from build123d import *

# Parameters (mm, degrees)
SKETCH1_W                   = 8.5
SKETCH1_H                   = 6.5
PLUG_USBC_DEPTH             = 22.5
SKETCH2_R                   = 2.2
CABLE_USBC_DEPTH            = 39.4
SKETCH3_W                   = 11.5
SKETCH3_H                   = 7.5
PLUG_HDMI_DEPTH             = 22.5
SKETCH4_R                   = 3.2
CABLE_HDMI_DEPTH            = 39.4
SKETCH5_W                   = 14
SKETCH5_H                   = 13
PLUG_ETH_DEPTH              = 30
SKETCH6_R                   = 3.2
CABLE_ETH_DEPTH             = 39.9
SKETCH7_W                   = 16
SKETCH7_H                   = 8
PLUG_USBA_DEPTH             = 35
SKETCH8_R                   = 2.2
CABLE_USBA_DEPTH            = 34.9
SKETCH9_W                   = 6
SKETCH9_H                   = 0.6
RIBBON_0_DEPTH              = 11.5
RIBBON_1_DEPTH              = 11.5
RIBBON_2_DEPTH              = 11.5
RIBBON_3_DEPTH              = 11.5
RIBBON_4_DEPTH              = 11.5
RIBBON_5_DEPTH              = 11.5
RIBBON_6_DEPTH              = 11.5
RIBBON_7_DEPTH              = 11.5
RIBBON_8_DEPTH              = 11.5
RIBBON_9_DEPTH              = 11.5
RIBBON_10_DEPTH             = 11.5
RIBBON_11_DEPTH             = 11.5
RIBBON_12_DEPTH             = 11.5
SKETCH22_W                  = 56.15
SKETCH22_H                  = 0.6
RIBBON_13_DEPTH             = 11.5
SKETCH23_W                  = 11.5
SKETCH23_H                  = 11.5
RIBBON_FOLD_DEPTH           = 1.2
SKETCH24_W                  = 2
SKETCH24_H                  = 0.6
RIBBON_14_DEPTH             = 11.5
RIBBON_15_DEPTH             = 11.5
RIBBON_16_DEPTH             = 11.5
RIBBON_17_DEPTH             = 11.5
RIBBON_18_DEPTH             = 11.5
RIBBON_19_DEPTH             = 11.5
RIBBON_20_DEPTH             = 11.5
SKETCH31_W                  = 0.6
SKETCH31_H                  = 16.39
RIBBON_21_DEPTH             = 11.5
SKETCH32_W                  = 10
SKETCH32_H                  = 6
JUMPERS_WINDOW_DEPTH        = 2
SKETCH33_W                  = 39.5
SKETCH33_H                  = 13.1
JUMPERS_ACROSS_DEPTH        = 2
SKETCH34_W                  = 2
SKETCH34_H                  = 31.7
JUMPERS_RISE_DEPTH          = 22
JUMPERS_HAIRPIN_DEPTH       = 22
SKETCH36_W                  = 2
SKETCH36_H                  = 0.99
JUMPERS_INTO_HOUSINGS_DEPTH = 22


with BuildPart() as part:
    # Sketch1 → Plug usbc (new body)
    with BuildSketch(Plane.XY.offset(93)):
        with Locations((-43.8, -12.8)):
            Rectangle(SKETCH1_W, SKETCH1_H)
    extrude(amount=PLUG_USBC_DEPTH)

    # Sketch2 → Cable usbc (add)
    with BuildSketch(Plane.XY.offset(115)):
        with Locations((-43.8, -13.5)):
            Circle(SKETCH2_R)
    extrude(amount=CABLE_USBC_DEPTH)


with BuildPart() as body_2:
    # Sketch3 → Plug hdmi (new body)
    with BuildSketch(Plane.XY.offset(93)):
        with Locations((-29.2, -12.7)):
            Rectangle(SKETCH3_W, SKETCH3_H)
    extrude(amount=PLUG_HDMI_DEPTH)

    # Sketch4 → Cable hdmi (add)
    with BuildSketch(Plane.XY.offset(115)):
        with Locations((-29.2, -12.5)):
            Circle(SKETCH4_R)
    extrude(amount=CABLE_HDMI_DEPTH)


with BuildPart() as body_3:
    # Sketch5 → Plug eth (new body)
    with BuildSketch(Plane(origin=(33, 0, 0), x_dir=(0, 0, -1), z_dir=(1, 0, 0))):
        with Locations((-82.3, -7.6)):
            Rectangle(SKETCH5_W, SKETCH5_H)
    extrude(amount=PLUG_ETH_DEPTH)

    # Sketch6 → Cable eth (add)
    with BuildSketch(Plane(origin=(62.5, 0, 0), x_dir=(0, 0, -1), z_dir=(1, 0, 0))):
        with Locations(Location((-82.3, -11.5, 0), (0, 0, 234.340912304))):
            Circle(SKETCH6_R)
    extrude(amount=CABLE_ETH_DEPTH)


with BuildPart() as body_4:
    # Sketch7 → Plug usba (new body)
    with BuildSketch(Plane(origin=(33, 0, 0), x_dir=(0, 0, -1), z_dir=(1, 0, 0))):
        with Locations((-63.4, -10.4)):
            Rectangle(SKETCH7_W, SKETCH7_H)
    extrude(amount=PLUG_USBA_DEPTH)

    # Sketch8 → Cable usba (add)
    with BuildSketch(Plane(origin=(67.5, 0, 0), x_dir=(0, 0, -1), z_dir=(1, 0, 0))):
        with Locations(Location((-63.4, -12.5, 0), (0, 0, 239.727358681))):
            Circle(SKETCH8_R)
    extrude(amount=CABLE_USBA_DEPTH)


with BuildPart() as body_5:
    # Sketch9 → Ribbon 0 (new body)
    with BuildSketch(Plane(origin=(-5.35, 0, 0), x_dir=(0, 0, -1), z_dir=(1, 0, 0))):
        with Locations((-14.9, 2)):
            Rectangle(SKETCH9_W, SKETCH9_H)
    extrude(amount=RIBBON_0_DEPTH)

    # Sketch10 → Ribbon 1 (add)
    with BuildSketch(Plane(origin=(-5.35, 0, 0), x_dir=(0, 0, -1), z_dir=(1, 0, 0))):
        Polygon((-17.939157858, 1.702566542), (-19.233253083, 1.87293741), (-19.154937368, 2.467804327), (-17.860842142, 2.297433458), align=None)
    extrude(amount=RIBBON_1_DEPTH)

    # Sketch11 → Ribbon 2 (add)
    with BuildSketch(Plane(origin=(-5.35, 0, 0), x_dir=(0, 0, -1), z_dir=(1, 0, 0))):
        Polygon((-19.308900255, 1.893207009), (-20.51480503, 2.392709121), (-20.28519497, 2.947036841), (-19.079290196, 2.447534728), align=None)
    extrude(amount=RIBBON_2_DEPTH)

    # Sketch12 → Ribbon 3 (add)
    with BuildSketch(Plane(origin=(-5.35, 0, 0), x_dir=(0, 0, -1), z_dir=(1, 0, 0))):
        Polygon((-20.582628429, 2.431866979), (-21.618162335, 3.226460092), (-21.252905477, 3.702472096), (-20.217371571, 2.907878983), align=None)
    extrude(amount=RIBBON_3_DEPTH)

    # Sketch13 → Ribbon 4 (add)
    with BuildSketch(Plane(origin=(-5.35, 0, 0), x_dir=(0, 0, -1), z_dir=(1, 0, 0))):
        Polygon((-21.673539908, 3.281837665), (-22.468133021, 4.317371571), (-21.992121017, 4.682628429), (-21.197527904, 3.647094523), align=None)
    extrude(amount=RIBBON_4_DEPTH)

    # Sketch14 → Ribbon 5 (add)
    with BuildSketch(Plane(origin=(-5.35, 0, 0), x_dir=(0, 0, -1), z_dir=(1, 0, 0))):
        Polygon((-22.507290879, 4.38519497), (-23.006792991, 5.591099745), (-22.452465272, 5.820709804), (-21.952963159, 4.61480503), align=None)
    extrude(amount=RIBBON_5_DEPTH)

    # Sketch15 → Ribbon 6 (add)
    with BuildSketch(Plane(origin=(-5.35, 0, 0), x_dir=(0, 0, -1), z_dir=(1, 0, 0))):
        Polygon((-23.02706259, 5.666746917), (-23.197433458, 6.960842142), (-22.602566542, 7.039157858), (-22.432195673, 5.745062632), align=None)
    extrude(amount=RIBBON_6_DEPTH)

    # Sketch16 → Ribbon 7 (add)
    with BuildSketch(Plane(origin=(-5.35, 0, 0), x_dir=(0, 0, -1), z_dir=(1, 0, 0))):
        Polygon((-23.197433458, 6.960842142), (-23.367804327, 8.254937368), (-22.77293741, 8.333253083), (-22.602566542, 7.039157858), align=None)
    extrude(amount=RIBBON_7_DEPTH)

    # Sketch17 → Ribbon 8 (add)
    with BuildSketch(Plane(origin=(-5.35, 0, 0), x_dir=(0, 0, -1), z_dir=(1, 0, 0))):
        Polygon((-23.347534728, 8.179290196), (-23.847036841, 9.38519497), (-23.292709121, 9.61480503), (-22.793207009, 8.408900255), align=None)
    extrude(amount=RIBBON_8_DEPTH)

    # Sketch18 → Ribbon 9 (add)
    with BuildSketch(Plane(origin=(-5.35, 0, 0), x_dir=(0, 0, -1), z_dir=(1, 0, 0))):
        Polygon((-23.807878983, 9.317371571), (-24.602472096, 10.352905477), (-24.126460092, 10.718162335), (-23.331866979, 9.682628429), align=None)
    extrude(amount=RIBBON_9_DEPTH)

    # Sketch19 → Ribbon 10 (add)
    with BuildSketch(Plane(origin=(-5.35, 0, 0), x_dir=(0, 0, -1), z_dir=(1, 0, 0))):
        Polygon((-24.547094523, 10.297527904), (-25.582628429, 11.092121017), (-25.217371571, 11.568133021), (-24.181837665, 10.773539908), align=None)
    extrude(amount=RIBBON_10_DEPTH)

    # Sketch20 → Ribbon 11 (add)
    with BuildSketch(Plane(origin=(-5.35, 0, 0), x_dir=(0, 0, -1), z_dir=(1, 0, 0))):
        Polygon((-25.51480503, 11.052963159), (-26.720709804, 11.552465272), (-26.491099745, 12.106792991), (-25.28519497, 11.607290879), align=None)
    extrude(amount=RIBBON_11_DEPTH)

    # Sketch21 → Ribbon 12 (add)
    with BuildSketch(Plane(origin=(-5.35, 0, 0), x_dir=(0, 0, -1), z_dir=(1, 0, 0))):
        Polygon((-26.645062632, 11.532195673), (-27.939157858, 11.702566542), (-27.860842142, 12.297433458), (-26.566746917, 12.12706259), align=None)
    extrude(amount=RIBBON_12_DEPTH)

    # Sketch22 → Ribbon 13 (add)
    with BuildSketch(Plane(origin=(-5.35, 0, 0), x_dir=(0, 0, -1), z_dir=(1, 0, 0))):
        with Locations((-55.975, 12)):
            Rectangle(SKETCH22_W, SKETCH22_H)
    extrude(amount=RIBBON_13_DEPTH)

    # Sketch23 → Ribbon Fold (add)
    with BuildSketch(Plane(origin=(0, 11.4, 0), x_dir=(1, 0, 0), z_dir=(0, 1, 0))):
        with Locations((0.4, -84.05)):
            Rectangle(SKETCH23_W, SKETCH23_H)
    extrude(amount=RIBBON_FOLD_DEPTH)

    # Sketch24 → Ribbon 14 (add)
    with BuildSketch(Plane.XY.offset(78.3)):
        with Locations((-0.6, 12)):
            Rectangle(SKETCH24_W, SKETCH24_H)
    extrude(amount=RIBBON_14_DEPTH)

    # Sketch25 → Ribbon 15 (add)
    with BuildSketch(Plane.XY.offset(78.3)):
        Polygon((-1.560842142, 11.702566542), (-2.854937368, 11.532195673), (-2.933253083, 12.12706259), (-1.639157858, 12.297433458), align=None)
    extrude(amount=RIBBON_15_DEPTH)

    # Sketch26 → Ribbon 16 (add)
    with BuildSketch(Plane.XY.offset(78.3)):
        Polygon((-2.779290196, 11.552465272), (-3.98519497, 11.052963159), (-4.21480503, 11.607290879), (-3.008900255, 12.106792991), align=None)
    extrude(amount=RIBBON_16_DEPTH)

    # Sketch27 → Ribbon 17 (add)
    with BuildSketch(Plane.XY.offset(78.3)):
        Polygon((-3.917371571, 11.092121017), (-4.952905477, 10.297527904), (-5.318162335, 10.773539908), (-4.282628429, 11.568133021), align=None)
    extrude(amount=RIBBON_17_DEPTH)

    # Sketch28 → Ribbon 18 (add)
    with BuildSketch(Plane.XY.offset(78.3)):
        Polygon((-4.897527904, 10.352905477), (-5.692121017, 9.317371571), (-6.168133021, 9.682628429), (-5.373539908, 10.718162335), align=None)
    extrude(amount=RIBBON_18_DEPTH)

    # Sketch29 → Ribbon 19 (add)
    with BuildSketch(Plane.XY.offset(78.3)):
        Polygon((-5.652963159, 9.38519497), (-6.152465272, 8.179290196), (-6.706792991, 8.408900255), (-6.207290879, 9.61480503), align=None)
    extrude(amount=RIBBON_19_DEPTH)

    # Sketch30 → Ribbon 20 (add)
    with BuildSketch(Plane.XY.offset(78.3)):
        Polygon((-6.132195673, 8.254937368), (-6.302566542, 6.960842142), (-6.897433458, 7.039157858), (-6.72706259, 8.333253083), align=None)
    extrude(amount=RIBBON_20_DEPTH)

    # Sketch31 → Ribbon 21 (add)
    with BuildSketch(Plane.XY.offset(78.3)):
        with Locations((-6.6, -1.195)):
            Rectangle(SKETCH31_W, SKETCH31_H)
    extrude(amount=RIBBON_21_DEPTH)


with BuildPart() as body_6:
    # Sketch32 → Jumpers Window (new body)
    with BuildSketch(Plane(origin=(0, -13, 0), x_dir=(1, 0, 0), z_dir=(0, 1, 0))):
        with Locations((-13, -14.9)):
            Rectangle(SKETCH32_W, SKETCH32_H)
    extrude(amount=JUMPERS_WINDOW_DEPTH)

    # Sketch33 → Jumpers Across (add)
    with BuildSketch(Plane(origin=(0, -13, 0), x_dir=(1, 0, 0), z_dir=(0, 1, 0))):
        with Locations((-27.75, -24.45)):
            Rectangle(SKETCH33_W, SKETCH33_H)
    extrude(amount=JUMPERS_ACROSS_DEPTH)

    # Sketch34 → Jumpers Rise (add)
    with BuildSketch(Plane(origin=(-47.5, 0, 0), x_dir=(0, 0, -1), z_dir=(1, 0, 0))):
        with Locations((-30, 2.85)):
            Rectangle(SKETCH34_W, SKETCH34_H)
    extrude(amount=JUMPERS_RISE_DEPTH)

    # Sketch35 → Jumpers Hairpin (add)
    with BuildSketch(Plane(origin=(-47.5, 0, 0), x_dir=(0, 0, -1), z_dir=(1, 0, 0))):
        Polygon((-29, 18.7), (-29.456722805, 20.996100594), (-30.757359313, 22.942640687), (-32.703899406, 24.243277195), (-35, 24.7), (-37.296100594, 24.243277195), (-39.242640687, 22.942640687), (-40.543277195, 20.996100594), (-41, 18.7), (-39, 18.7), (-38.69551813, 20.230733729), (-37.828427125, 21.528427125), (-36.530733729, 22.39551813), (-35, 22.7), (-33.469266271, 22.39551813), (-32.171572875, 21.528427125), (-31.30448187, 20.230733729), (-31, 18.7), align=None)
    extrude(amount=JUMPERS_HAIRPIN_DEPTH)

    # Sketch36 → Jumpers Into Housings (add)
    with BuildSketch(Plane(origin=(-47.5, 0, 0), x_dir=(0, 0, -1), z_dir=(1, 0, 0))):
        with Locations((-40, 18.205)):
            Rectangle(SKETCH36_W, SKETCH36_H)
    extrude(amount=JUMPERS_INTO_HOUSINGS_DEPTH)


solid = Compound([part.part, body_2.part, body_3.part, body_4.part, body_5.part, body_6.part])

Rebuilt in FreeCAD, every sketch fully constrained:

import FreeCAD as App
import Part
import Sketcher
Q = App.Units.Quantity


def add_polygon(sketch, points):
    """Adds a closed chain of lines whose ends are joined by coincident constraints."""
    first, n = sketch.GeometryCount, len(points)
    for a, b in zip(points, points[1:] + points[:1]):
        sketch.addGeometry(Part.LineSegment(App.Vector(*a, 0), App.Vector(*b, 0)), False)
    for i in range(n):
        sketch.addConstraint(Sketcher.Constraint("Coincident", first + i, 2, first + (i + 1) % n, 1))

doc = App.newDocument("Part")
body = doc.addObject("PartDesign::Body", "Body")

# Sketch on XY plane
sketch1 = body.newObject("Sketcher::SketchObject", "Sketch")
sketch1.AttachmentSupport = (doc.getObject("XY_Plane"), [""])
sketch1.MapMode = "FlatFace"
sketch1.AttachmentOffset = App.Placement(App.Vector(0, 0, 93), App.Rotation())
add_polygon(sketch1, [(-48.05, -9.55), (-48.05, -16.05), (-39.55, -16.05), (-39.55, -9.55)])  # lines 0-3
sketch1.addConstraint(Sketcher.Constraint("Vertical", 0))
sketch1.addConstraint(Sketcher.Constraint("Horizontal", 1))
sketch1.addConstraint(Sketcher.Constraint("Vertical", 2))
sketch1.addConstraint(Sketcher.Constraint("Horizontal", 3))
sketch1.addConstraint(Sketcher.Constraint("DistanceX", 1, 1, 1, 2, Q("8.5 mm")))
sketch1.addConstraint(Sketcher.Constraint("DistanceY", 0, 2, 0, 1, Q("6.5 mm")))
sketch1.addConstraint(Sketcher.Constraint("DistanceX", 0, 2, -1, 1, Q("48.05 mm")))
sketch1.addConstraint(Sketcher.Constraint("DistanceY", 0, 2, -1, 1, Q("16.05 mm")))
pad1 = body.newObject("PartDesign::Pad", "Pad")
pad1.Profile = sketch1
pad1.Length = 22.5

# Sketch on XY plane
sketch2 = body.newObject("Sketcher::SketchObject", "Sketch001")
sketch2.AttachmentSupport = (doc.getObject("XY_Plane"), [""])
sketch2.MapMode = "FlatFace"
sketch2.AttachmentOffset = App.Placement(App.Vector(0, 0, 115), App.Rotation())
sketch2.addGeometry(Part.Circle(App.Vector(-43.8, -13.5, 0), App.Vector(0, 0, 1), 2.2), False)
sketch2.addConstraint(Sketcher.Constraint("Diameter", 0, Q("4.4 mm")))
sketch2.addConstraint(Sketcher.Constraint("DistanceX", 0, 3, -1, 1, Q("43.8 mm")))
sketch2.addConstraint(Sketcher.Constraint("DistanceY", 0, 3, -1, 1, Q("13.5 mm")))
pad2 = body.newObject("PartDesign::Pad", "Pad001")
pad2.Profile = sketch2
pad2.Length = 39.4
body2 = doc.addObject("PartDesign::Body", "Body001")

# Sketch on XY plane
sketch3 = body2.newObject("Sketcher::SketchObject", "Sketch002")
sketch3.AttachmentSupport = (doc.getObject("XY_Plane001"), [""])
sketch3.MapMode = "FlatFace"
sketch3.AttachmentOffset = App.Placement(App.Vector(0, 0, 93), App.Rotation())
add_polygon(sketch3, [(-34.95, -8.95), (-34.95, -16.45), (-23.45, -16.45), (-23.45, -8.95)])  # lines 0-3
sketch3.addConstraint(Sketcher.Constraint("Vertical", 0))
sketch3.addConstraint(Sketcher.Constraint("Horizontal", 1))
sketch3.addConstraint(Sketcher.Constraint("Vertical", 2))
sketch3.addConstraint(Sketcher.Constraint("Horizontal", 3))
sketch3.addConstraint(Sketcher.Constraint("DistanceX", 1, 1, 1, 2, Q("11.5 mm")))
sketch3.addConstraint(Sketcher.Constraint("DistanceY", 0, 2, 0, 1, Q("7.5 mm")))
sketch3.addConstraint(Sketcher.Constraint("DistanceX", 0, 2, -1, 1, Q("34.95 mm")))
sketch3.addConstraint(Sketcher.Constraint("DistanceY", 0, 2, -1, 1, Q("16.45 mm")))
pad3 = body2.newObject("PartDesign::Pad", "Pad002")
pad3.Profile = sketch3
pad3.Length = 22.5

# Sketch on XY plane
sketch4 = body2.newObject("Sketcher::SketchObject", "Sketch003")
sketch4.AttachmentSupport = (doc.getObject("XY_Plane001"), [""])
sketch4.MapMode = "FlatFace"
sketch4.AttachmentOffset = App.Placement(App.Vector(0, 0, 115), App.Rotation())
sketch4.addGeometry(Part.Circle(App.Vector(-29.2, -12.5, 0), App.Vector(0, 0, 1), 3.2), False)
sketch4.addConstraint(Sketcher.Constraint("Diameter", 0, Q("6.4 mm")))
sketch4.addConstraint(Sketcher.Constraint("DistanceX", 0, 3, -1, 1, Q("29.2 mm")))
sketch4.addConstraint(Sketcher.Constraint("DistanceY", 0, 3, -1, 1, Q("12.5 mm")))
pad4 = body2.newObject("PartDesign::Pad", "Pad003")
pad4.Profile = sketch4
pad4.Length = 39.4
body3 = doc.addObject("PartDesign::Body", "Body002")

# Sketch on YZ plane
sketch5 = body3.newObject("Sketcher::SketchObject", "Sketch004")
sketch5.AttachmentSupport = (doc.getObject("YZ_Plane002"), [""])
sketch5.MapMode = "FlatFace"
sketch5.AttachmentOffset = App.Placement(App.Vector(0, 0, 33), App.Rotation())
add_polygon(sketch5, [(-1.1, 89.3), (-14.1, 89.3), (-14.1, 75.3), (-1.1, 75.3)])  # lines 0-3
sketch5.addConstraint(Sketcher.Constraint("Horizontal", 0))
sketch5.addConstraint(Sketcher.Constraint("Vertical", 1))
sketch5.addConstraint(Sketcher.Constraint("Horizontal", 2))
sketch5.addConstraint(Sketcher.Constraint("Vertical", 3))
sketch5.addConstraint(Sketcher.Constraint("DistanceX", 0, 2, 0, 1, Q("13 mm")))
sketch5.addConstraint(Sketcher.Constraint("DistanceY", 1, 2, 1, 1, Q("14 mm")))
sketch5.addConstraint(Sketcher.Constraint("DistanceX", 0, 2, -1, 1, Q("14.1 mm")))
sketch5.addConstraint(Sketcher.Constraint("DistanceY", -1, 1, 0, 2, Q("89.3 mm")))
pad5 = body3.newObject("PartDesign::Pad", "Pad004")
pad5.Profile = sketch5
pad5.Length = 30

# Sketch on YZ plane
sketch6 = body3.newObject("Sketcher::SketchObject", "Sketch005")
sketch6.AttachmentSupport = (doc.getObject("YZ_Plane002"), [""])
sketch6.MapMode = "FlatFace"
sketch6.AttachmentOffset = App.Placement(App.Vector(0, 0, 62.5), App.Rotation())
sketch6.addGeometry(Part.Circle(App.Vector(-11.5, 82.3, 0), App.Vector(0, 0, 1), 3.2), False)
sketch6.addConstraint(Sketcher.Constraint("Diameter", 0, Q("6.4 mm")))
sketch6.addConstraint(Sketcher.Constraint("DistanceX", 0, 3, -1, 1, Q("11.5 mm")))
sketch6.addConstraint(Sketcher.Constraint("DistanceY", -1, 1, 0, 3, Q("82.3 mm")))
pad6 = body3.newObject("PartDesign::Pad", "Pad005")
pad6.Profile = sketch6
pad6.Length = 39.9
body4 = doc.addObject("PartDesign::Body", "Body003")

# Sketch on YZ plane
sketch7 = body4.newObject("Sketcher::SketchObject", "Sketch006")
sketch7.AttachmentSupport = (doc.getObject("YZ_Plane003"), [""])
sketch7.MapMode = "FlatFace"
sketch7.AttachmentOffset = App.Placement(App.Vector(0, 0, 33), App.Rotation())
add_polygon(sketch7, [(-6.4, 71.4), (-14.4, 71.4), (-14.4, 55.4), (-6.4, 55.4)])  # lines 0-3
sketch7.addConstraint(Sketcher.Constraint("Horizontal", 0))
sketch7.addConstraint(Sketcher.Constraint("Vertical", 1))
sketch7.addConstraint(Sketcher.Constraint("Horizontal", 2))
sketch7.addConstraint(Sketcher.Constraint("Vertical", 3))
sketch7.addConstraint(Sketcher.Constraint("DistanceX", 0, 2, 0, 1, Q("8 mm")))
sketch7.addConstraint(Sketcher.Constraint("DistanceY", 1, 2, 1, 1, Q("16 mm")))
sketch7.addConstraint(Sketcher.Constraint("DistanceX", 0, 2, -1, 1, Q("14.4 mm")))
sketch7.addConstraint(Sketcher.Constraint("DistanceY", -1, 1, 0, 2, Q("71.4 mm")))
pad7 = body4.newObject("PartDesign::Pad", "Pad006")
pad7.Profile = sketch7
pad7.Length = 35

# Sketch on YZ plane
sketch8 = body4.newObject("Sketcher::SketchObject", "Sketch007")
sketch8.AttachmentSupport = (doc.getObject("YZ_Plane003"), [""])
sketch8.MapMode = "FlatFace"
sketch8.AttachmentOffset = App.Placement(App.Vector(0, 0, 67.5), App.Rotation())
sketch8.addGeometry(Part.Circle(App.Vector(-12.5, 63.4, 0), App.Vector(0, 0, 1), 2.2), False)
sketch8.addConstraint(Sketcher.Constraint("Diameter", 0, Q("4.4 mm")))
sketch8.addConstraint(Sketcher.Constraint("DistanceX", 0, 3, -1, 1, Q("12.5 mm")))
sketch8.addConstraint(Sketcher.Constraint("DistanceY", -1, 1, 0, 3, Q("63.4 mm")))
pad8 = body4.newObject("PartDesign::Pad", "Pad007")
pad8.Profile = sketch8
pad8.Length = 34.9
body5 = doc.addObject("PartDesign::Body", "Body004")

# Sketch on YZ plane
sketch9 = body5.newObject("Sketcher::SketchObject", "Sketch008")
sketch9.AttachmentSupport = (doc.getObject("YZ_Plane004"), [""])
sketch9.MapMode = "FlatFace"
sketch9.AttachmentOffset = App.Placement(App.Vector(0, 0, -5.35), App.Rotation())
add_polygon(sketch9, [(2.3, 17.9), (1.7, 17.9), (1.7, 11.9), (2.3, 11.9)])  # lines 0-3
sketch9.addConstraint(Sketcher.Constraint("Horizontal", 0))
sketch9.addConstraint(Sketcher.Constraint("Vertical", 1))
sketch9.addConstraint(Sketcher.Constraint("Horizontal", 2))
sketch9.addConstraint(Sketcher.Constraint("Vertical", 3))
sketch9.addConstraint(Sketcher.Constraint("DistanceY", 1, 2, 1, 1, Q("6 mm")))
sketch9.addConstraint(Sketcher.Constraint("DistanceX", 0, 2, 0, 1, Q("0.6 mm")))
sketch9.addConstraint(Sketcher.Constraint("DistanceX", -1, 1, 0, 2, Q("1.7 mm")))
sketch9.addConstraint(Sketcher.Constraint("DistanceY", -1, 1, 0, 2, Q("17.9 mm")))
pad9 = body5.newObject("PartDesign::Pad", "Pad008")
pad9.Profile = sketch9
pad9.Length = 11.5

# Sketch on YZ plane
sketch10 = body5.newObject("Sketcher::SketchObject", "Sketch009")
sketch10.AttachmentSupport = (doc.getObject("YZ_Plane004"), [""])
sketch10.MapMode = "FlatFace"
sketch10.AttachmentOffset = App.Placement(App.Vector(0, 0, -5.35), App.Rotation())
add_polygon(sketch10, [(1.872937, 19.233253), (1.702567, 17.939158), (2.297433, 17.860842), (2.467804, 19.154937)])  # lines 0-3
sketch10.addConstraint(Sketcher.Constraint("Perpendicular", 0, 1))
sketch10.addConstraint(Sketcher.Constraint("Perpendicular", 1, 2))
sketch10.addConstraint(Sketcher.Constraint("Perpendicular", 2, 3))
sketch10.addConstraint(Sketcher.Constraint("Angle", 0, Q("-97.5 deg")))
sketch10.addConstraint(Sketcher.Constraint("Distance", 1, Q("0.6 mm")))
sketch10.addConstraint(Sketcher.Constraint("Distance", 0, Q("1.305262 mm")))
sketch10.addConstraint(Sketcher.Constraint("DistanceX", -1, 1, 0, 2, Q("1.702567 mm")))
sketch10.addConstraint(Sketcher.Constraint("DistanceY", -1, 1, 0, 2, Q("17.939158 mm")))
pad10 = body5.newObject("PartDesign::Pad", "Pad009")
pad10.Profile = sketch10
pad10.Length = 11.5

# Sketch on YZ plane
sketch11 = body5.newObject("Sketcher::SketchObject", "Sketch010")
sketch11.AttachmentSupport = (doc.getObject("YZ_Plane004"), [""])
sketch11.MapMode = "FlatFace"
sketch11.AttachmentOffset = App.Placement(App.Vector(0, 0, -5.35), App.Rotation())
add_polygon(sketch11, [(2.392709, 20.514805), (1.893207, 19.3089), (2.447535, 19.07929), (2.947037, 20.285195)])  # lines 0-3
sketch11.addConstraint(Sketcher.Constraint("Perpendicular", 0, 1))
sketch11.addConstraint(Sketcher.Constraint("Perpendicular", 1, 2))
sketch11.addConstraint(Sketcher.Constraint("Perpendicular", 2, 3))
sketch11.addConstraint(Sketcher.Constraint("Angle", 0, Q("-112.5 deg")))
sketch11.addConstraint(Sketcher.Constraint("Distance", 1, Q("0.6 mm")))
sketch11.addConstraint(Sketcher.Constraint("DistanceY", -1, 1, 0, 2, Q("19.3089 mm")))
sketch11.addConstraint(Sketcher.Constraint("Distance", 0, Q("1.305262 mm")))
sketch11.addConstraint(Sketcher.Constraint("DistanceX", -1, 1, 3, 2, Q("2.392709 mm")))
pad11 = body5.newObject("PartDesign::Pad", "Pad010")
pad11.Profile = sketch11
pad11.Length = 11.5

# Sketch on YZ plane
sketch12 = body5.newObject("Sketcher::SketchObject", "Sketch011")
sketch12.AttachmentSupport = (doc.getObject("YZ_Plane004"), [""])
sketch12.MapMode = "FlatFace"
sketch12.AttachmentOffset = App.Placement(App.Vector(0, 0, -5.35), App.Rotation())
add_polygon(sketch12, [(3.22646, 21.618162), (2.431867, 20.582628), (2.907879, 20.217372), (3.702472, 21.252905)])  # lines 0-3
sketch12.addConstraint(Sketcher.Constraint("Perpendicular", 0, 1))
sketch12.addConstraint(Sketcher.Constraint("Perpendicular", 1, 2))
sketch12.addConstraint(Sketcher.Constraint("Perpendicular", 2, 3))
sketch12.addConstraint(Sketcher.Constraint("Angle", 0, Q("-127.5 deg")))
sketch12.addConstraint(Sketcher.Constraint("Distance", 1, Q("0.6 mm")))
sketch12.addConstraint(Sketcher.Constraint("Distance", 0, Q("1.305262 mm")))
sketch12.addConstraint(Sketcher.Constraint("DistanceY", -1, 1, 0, 2, Q("20.582628 mm")))
sketch12.addConstraint(Sketcher.Constraint("DistanceX", -1, 1, 1, 2, Q("2.907879 mm")))
pad12 = body5.newObject("PartDesign::Pad", "Pad011")
pad12.Profile = sketch12
pad12.Length = 11.5

# Sketch on YZ plane
sketch13 = body5.newObject("Sketcher::SketchObject", "Sketch012")
sketch13.AttachmentSupport = (doc.getObject("YZ_Plane004"), [""])
sketch13.MapMode = "FlatFace"
sketch13.AttachmentOffset = App.Placement(App.Vector(0, 0, -5.35), App.Rotation())
add_polygon(sketch13, [(4.317372, 22.468133), (3.281838, 21.67354), (3.647095, 21.197528), (4.682628, 21.992121)])  # lines 0-3
sketch13.addConstraint(Sketcher.Constraint("Perpendicular", 0, 1))
sketch13.addConstraint(Sketcher.Constraint("Perpendicular", 1, 2))
sketch13.addConstraint(Sketcher.Constraint("Perpendicular", 2, 3))
sketch13.addConstraint(Sketcher.Constraint("Angle", 0, Q("-142.5 deg")))
sketch13.addConstraint(Sketcher.Constraint("Distance", 1, Q("0.6 mm")))
sketch13.addConstraint(Sketcher.Constraint("Distance", 0, Q("1.305262 mm")))
sketch13.addConstraint(Sketcher.Constraint("DistanceY", -1, 1, 0, 2, Q("21.67354 mm")))
sketch13.addConstraint(Sketcher.Constraint("DistanceX", -1, 1, 2, 2, Q("4.682628 mm")))
pad13 = body5.newObject("PartDesign::Pad", "Pad012")
pad13.Profile = sketch13
pad13.Length = 11.5

# Sketch on YZ plane
sketch14 = body5.newObject("Sketcher::SketchObject", "Sketch013")
sketch14.AttachmentSupport = (doc.getObject("YZ_Plane004"), [""])
sketch14.MapMode = "FlatFace"
sketch14.AttachmentOffset = App.Placement(App.Vector(0, 0, -5.35), App.Rotation())
add_polygon(sketch14, [(5.5911, 23.006793), (4.385195, 22.507291), (4.614805, 21.952963), (5.82071, 22.452465)])  # lines 0-3
sketch14.addConstraint(Sketcher.Constraint("Perpendicular", 0, 1))
sketch14.addConstraint(Sketcher.Constraint("Perpendicular", 1, 2))
sketch14.addConstraint(Sketcher.Constraint("Perpendicular", 2, 3))
sketch14.addConstraint(Sketcher.Constraint("Angle", 0, Q("-157.5 deg")))
sketch14.addConstraint(Sketcher.Constraint("Distance", 1, Q("0.6 mm")))
sketch14.addConstraint(Sketcher.Constraint("DistanceX", -1, 1, 3, 2, Q("5.5911 mm")))
sketch14.addConstraint(Sketcher.Constraint("Distance", 0, Q("1.305262 mm")))
sketch14.addConstraint(Sketcher.Constraint("DistanceY", -1, 1, 0, 2, Q("22.507291 mm")))
pad14 = body5.newObject("PartDesign::Pad", "Pad013")
pad14.Profile = sketch14
pad14.Length = 11.5

# Sketch on YZ plane
sketch15 = body5.newObject("Sketcher::SketchObject", "Sketch014")
sketch15.AttachmentSupport = (doc.getObject("YZ_Plane004"), [""])
sketch15.MapMode = "FlatFace"
sketch15.AttachmentOffset = App.Placement(App.Vector(0, 0, -5.35), App.Rotation())
add_polygon(sketch15, [(6.960842, 23.197433), (5.666747, 23.027063), (5.745063, 22.432196), (7.039158, 22.602567)])  # lines 0-3
sketch15.addConstraint(Sketcher.Constraint("Perpendicular", 0, 1))
sketch15.addConstraint(Sketcher.Constraint("Perpendicular", 1, 2))
sketch15.addConstraint(Sketcher.Constraint("Perpendicular", 2, 3))
sketch15.addConstraint(Sketcher.Constraint("Angle", 0, Q("-172.5 deg")))
sketch15.addConstraint(Sketcher.Constraint("Distance", 1, Q("0.6 mm")))
sketch15.addConstraint(Sketcher.Constraint("Distance", 0, Q("1.305262 mm")))
sketch15.addConstraint(Sketcher.Constraint("DistanceX", -1, 1, 0, 2, Q("5.666747 mm")))
sketch15.addConstraint(Sketcher.Constraint("DistanceY", -1, 1, 0, 2, Q("23.027063 mm")))
pad15 = body5.newObject("PartDesign::Pad", "Pad014")
pad15.Profile = sketch15
pad15.Length = 11.5

# Sketch on YZ plane
sketch16 = body5.newObject("Sketcher::SketchObject", "Sketch015")
sketch16.AttachmentSupport = (doc.getObject("YZ_Plane004"), [""])
sketch16.MapMode = "FlatFace"
sketch16.AttachmentOffset = App.Placement(App.Vector(0, 0, -5.35), App.Rotation())
add_polygon(sketch16, [(8.254937, 23.367804), (6.960842, 23.197433), (7.039158, 22.602567), (8.333253, 22.772937)])  # lines 0-3
sketch16.addConstraint(Sketcher.Constraint("Perpendicular", 0, 1))
sketch16.addConstraint(Sketcher.Constraint("Perpendicular", 1, 2))
sketch16.addConstraint(Sketcher.Constraint("Perpendicular", 2, 3))
sketch16.addConstraint(Sketcher.Constraint("Angle", 0, Q("-172.5 deg")))
sketch16.addConstraint(Sketcher.Constraint("Distance", 1, Q("0.6 mm")))
sketch16.addConstraint(Sketcher.Constraint("Distance", 0, Q("1.305262 mm")))
sketch16.addConstraint(Sketcher.Constraint("DistanceX", -1, 1, 0, 2, Q("6.960842 mm")))
sketch16.addConstraint(Sketcher.Constraint("DistanceY", -1, 1, 0, 2, Q("23.197433 mm")))
pad16 = body5.newObject("PartDesign::Pad", "Pad015")
pad16.Profile = sketch16
pad16.Length = 11.5

# Sketch on YZ plane
sketch17 = body5.newObject("Sketcher::SketchObject", "Sketch016")
sketch17.AttachmentSupport = (doc.getObject("YZ_Plane004"), [""])
sketch17.MapMode = "FlatFace"
sketch17.AttachmentOffset = App.Placement(App.Vector(0, 0, -5.35), App.Rotation())
add_polygon(sketch17, [(9.385195, 23.847037), (8.17929, 23.347535), (8.4089, 22.793207), (9.614805, 23.292709)])  # lines 0-3
sketch17.addConstraint(Sketcher.Constraint("Perpendicular", 0, 1))
sketch17.addConstraint(Sketcher.Constraint("Perpendicular", 1, 2))
sketch17.addConstraint(Sketcher.Constraint("Perpendicular", 2, 3))
sketch17.addConstraint(Sketcher.Constraint("Angle", 0, Q("-157.5 deg")))
sketch17.addConstraint(Sketcher.Constraint("Distance", 1, Q("0.6 mm")))
sketch17.addConstraint(Sketcher.Constraint("DistanceX", -1, 1, 1, 2, Q("8.4089 mm")))
sketch17.addConstraint(Sketcher.Constraint("Distance", 0, Q("1.305262 mm")))
sketch17.addConstraint(Sketcher.Constraint("DistanceY", -1, 1, 2, 2, Q("23.292709 mm")))
pad17 = body5.newObject("PartDesign::Pad", "Pad016")
pad17.Profile = sketch17
pad17.Length = 11.5

# Sketch on YZ plane
sketch18 = body5.newObject("Sketcher::SketchObject", "Sketch017")
sketch18.AttachmentSupport = (doc.getObject("YZ_Plane004"), [""])
sketch18.MapMode = "FlatFace"
sketch18.AttachmentOffset = App.Placement(App.Vector(0, 0, -5.35), App.Rotation())
add_polygon(sketch18, [(10.352905, 24.602472), (9.317372, 23.807879), (9.682628, 23.331867), (10.718162, 24.12646)])  # lines 0-3
sketch18.addConstraint(Sketcher.Constraint("Perpendicular", 0, 1))
sketch18.addConstraint(Sketcher.Constraint("Perpendicular", 1, 2))
sketch18.addConstraint(Sketcher.Constraint("Perpendicular", 2, 3))
sketch18.addConstraint(Sketcher.Constraint("Angle", 0, Q("-142.5 deg")))
sketch18.addConstraint(Sketcher.Constraint("Distance", 1, Q("0.6 mm")))
sketch18.addConstraint(Sketcher.Constraint("Distance", 0, Q("1.305262 mm")))
sketch18.addConstraint(Sketcher.Constraint("DistanceX", -1, 1, 0, 2, Q("9.317372 mm")))
sketch18.addConstraint(Sketcher.Constraint("DistanceY", -1, 1, 0, 2, Q("23.807879 mm")))
pad18 = body5.newObject("PartDesign::Pad", "Pad017")
pad18.Profile = sketch18
pad18.Length = 11.5

# Sketch on YZ plane
sketch19 = body5.newObject("Sketcher::SketchObject", "Sketch018")
sketch19.AttachmentSupport = (doc.getObject("YZ_Plane004"), [""])
sketch19.MapMode = "FlatFace"
sketch19.AttachmentOffset = App.Placement(App.Vector(0, 0, -5.35), App.Rotation())
add_polygon(sketch19, [(11.092121, 25.582628), (10.297528, 24.547095), (10.77354, 24.181838), (11.568133, 25.217372)])  # lines 0-3
sketch19.addConstraint(Sketcher.Constraint("Perpendicular", 0, 1))
sketch19.addConstraint(Sketcher.Constraint("Perpendicular", 1, 2))
sketch19.addConstraint(Sketcher.Constraint("Perpendicular", 2, 3))
sketch19.addConstraint(Sketcher.Constraint("Angle", 0, Q("-127.5 deg")))
sketch19.addConstraint(Sketcher.Constraint("Distance", 1, Q("0.6 mm")))
sketch19.addConstraint(Sketcher.Constraint("Distance", 0, Q("1.305262 mm")))
sketch19.addConstraint(Sketcher.Constraint("DistanceX", -1, 1, 1, 2, Q("10.77354 mm")))
sketch19.addConstraint(Sketcher.Constraint("DistanceY", -1, 1, 2, 2, Q("25.217372 mm")))
pad19 = body5.newObject("PartDesign::Pad", "Pad018")
pad19.Profile = sketch19
pad19.Length = 11.5

# Sketch on YZ plane
sketch20 = body5.newObject("Sketcher::SketchObject", "Sketch019")
sketch20.AttachmentSupport = (doc.getObject("YZ_Plane004"), [""])
sketch20.MapMode = "FlatFace"
sketch20.AttachmentOffset = App.Placement(App.Vector(0, 0, -5.35), App.Rotation())
add_polygon(sketch20, [(11.552465, 26.72071), (11.052963, 25.514805), (11.607291, 25.285195), (12.106793, 26.4911)])  # lines 0-3
sketch20.addConstraint(Sketcher.Constraint("Perpendicular", 0, 1))
sketch20.addConstraint(Sketcher.Constraint("Perpendicular", 1, 2))
sketch20.addConstraint(Sketcher.Constraint("Perpendicular", 2, 3))
sketch20.addConstraint(Sketcher.Constraint("Angle", 0, Q("-112.5 deg")))
sketch20.addConstraint(Sketcher.Constraint("Distance", 1, Q("0.6 mm")))
sketch20.addConstraint(Sketcher.Constraint("DistanceY", -1, 1, 2, 2, Q("26.4911 mm")))
sketch20.addConstraint(Sketcher.Constraint("Distance", 0, Q("1.305262 mm")))
sketch20.addConstraint(Sketcher.Constraint("DistanceX", -1, 1, 1, 2, Q("11.607291 mm")))
pad20 = body5.newObject("PartDesign::Pad", "Pad019")
pad20.Profile = sketch20
pad20.Length = 11.5

# Sketch on YZ plane
sketch21 = body5.newObject("Sketcher::SketchObject", "Sketch020")
sketch21.AttachmentSupport = (doc.getObject("YZ_Plane004"), [""])
sketch21.MapMode = "FlatFace"
sketch21.AttachmentOffset = App.Placement(App.Vector(0, 0, -5.35), App.Rotation())
add_polygon(sketch21, [(11.702567, 27.939158), (11.532196, 26.645063), (12.127063, 26.566747), (12.297433, 27.860842)])  # lines 0-3
sketch21.addConstraint(Sketcher.Constraint("Perpendicular", 0, 1))
sketch21.addConstraint(Sketcher.Constraint("Perpendicular", 1, 2))
sketch21.addConstraint(Sketcher.Constraint("Perpendicular", 2, 3))
sketch21.addConstraint(Sketcher.Constraint("Angle", 0, Q("-97.5 deg")))
sketch21.addConstraint(Sketcher.Constraint("Distance", 1, Q("0.6 mm")))
sketch21.addConstraint(Sketcher.Constraint("Distance", 0, Q("1.305262 mm")))
sketch21.addConstraint(Sketcher.Constraint("DistanceX", -1, 1, 0, 2, Q("11.532196 mm")))
sketch21.addConstraint(Sketcher.Constraint("DistanceY", -1, 1, 0, 2, Q("26.645063 mm")))
pad21 = body5.newObject("PartDesign::Pad", "Pad020")
pad21.Profile = sketch21
pad21.Length = 11.5

# Sketch on YZ plane
sketch22 = body5.newObject("Sketcher::SketchObject", "Sketch021")
sketch22.AttachmentSupport = (doc.getObject("YZ_Plane004"), [""])
sketch22.MapMode = "FlatFace"
sketch22.AttachmentOffset = App.Placement(App.Vector(0, 0, -5.35), App.Rotation())
add_polygon(sketch22, [(12.3, 84.05), (11.7, 84.05), (11.7, 27.9), (12.3, 27.9)])  # lines 0-3
sketch22.addConstraint(Sketcher.Constraint("Horizontal", 0))
sketch22.addConstraint(Sketcher.Constraint("Vertical", 1))
sketch22.addConstraint(Sketcher.Constraint("Horizontal", 2))
sketch22.addConstraint(Sketcher.Constraint("Vertical", 3))
sketch22.addConstraint(Sketcher.Constraint("DistanceX", 0, 2, 0, 1, Q("0.6 mm")))
sketch22.addConstraint(Sketcher.Constraint("DistanceY", 1, 2, 1, 1, Q("56.15 mm")))
sketch22.addConstraint(Sketcher.Constraint("DistanceX", -1, 1, 0, 2, Q("11.7 mm")))
sketch22.addConstraint(Sketcher.Constraint("DistanceY", -1, 1, 1, 2, Q("27.9 mm")))
pad22 = body5.newObject("PartDesign::Pad", "Pad021")
pad22.Profile = sketch22
pad22.Length = 11.5

# Sketch on XZ plane
sketch23 = body5.newObject("Sketcher::SketchObject", "Sketch022")
sketch23.AttachmentSupport = (doc.getObject("XZ_Plane004"), [""])
sketch23.MapMode = "FlatFace"
sketch23.AttachmentOffset = App.Placement(App.Vector(0, 0, -11.4), App.Rotation())
add_polygon(sketch23, [(-5.35, 78.3), (-5.35, 89.8), (6.15, 89.8), (6.15, 78.3)])  # lines 0-3
sketch23.addConstraint(Sketcher.Constraint("Vertical", 0))
sketch23.addConstraint(Sketcher.Constraint("Horizontal", 1))
sketch23.addConstraint(Sketcher.Constraint("Vertical", 2))
sketch23.addConstraint(Sketcher.Constraint("Horizontal", 3))
sketch23.addConstraint(Sketcher.Constraint("Equal", 3, 0))
sketch23.addConstraint(Sketcher.Constraint("DistanceX", 1, 1, 1, 2, Q("11.5 mm")))
sketch23.addConstraint(Sketcher.Constraint("DistanceY", -1, 1, 0, 2, Q("89.8 mm")))
sketch23.addConstraint(Sketcher.Constraint("DistanceX", 0, 2, -1, 1, Q("5.35 mm")))
pad23 = body5.newObject("PartDesign::Pad", "Pad022")
pad23.Profile = sketch23
pad23.Length = 1.2
pad23.Reversed = True

# Sketch on XY plane
sketch24 = body5.newObject("Sketcher::SketchObject", "Sketch023")
sketch24.AttachmentSupport = (doc.getObject("XY_Plane004"), [""])
sketch24.MapMode = "FlatFace"
sketch24.AttachmentOffset = App.Placement(App.Vector(0, 0, 78.3), App.Rotation())
add_polygon(sketch24, [(-1.6, 12.3), (-1.6, 11.7), (0.4, 11.7), (0.4, 12.3)])  # lines 0-3
sketch24.addConstraint(Sketcher.Constraint("Vertical", 0))
sketch24.addConstraint(Sketcher.Constraint("Horizontal", 1))
sketch24.addConstraint(Sketcher.Constraint("Vertical", 2))
sketch24.addConstraint(Sketcher.Constraint("Horizontal", 3))
sketch24.addConstraint(Sketcher.Constraint("DistanceX", 1, 1, 1, 2, Q("2 mm")))
sketch24.addConstraint(Sketcher.Constraint("DistanceY", 0, 2, 0, 1, Q("0.6 mm")))
sketch24.addConstraint(Sketcher.Constraint("DistanceX", 0, 2, -1, 1, Q("1.6 mm")))
sketch24.addConstraint(Sketcher.Constraint("DistanceY", -1, 1, 0, 2, Q("11.7 mm")))
pad24 = body5.newObject("PartDesign::Pad", "Pad023")
pad24.Profile = sketch24
pad24.Length = 11.5

# Sketch on XY plane
sketch25 = body5.newObject("Sketcher::SketchObject", "Sketch024")
sketch25.AttachmentSupport = (doc.getObject("XY_Plane004"), [""])
sketch25.MapMode = "FlatFace"
sketch25.AttachmentOffset = App.Placement(App.Vector(0, 0, 78.3), App.Rotation())
add_polygon(sketch25, [(-2.854937, 11.532196), (-1.560842, 11.702567), (-1.639158, 12.297433), (-2.933253, 12.127063)])  # lines 0-3
sketch25.addConstraint(Sketcher.Constraint("Perpendicular", 0, 1))
sketch25.addConstraint(Sketcher.Constraint("Perpendicular", 1, 2))
sketch25.addConstraint(Sketcher.Constraint("Perpendicular", 2, 3))
sketch25.addConstraint(Sketcher.Constraint("Angle", 0, Q("7.5 deg")))
sketch25.addConstraint(Sketcher.Constraint("Distance", 1, Q("0.6 mm")))
sketch25.addConstraint(Sketcher.Constraint("Distance", 0, Q("1.305262 mm")))
sketch25.addConstraint(Sketcher.Constraint("DistanceX", 0, 2, -1, 1, Q("1.560842 mm")))
sketch25.addConstraint(Sketcher.Constraint("DistanceY", -1, 1, 0, 2, Q("11.702567 mm")))
pad25 = body5.newObject("PartDesign::Pad", "Pad024")
pad25.Profile = sketch25
pad25.Length = 11.5

# Sketch on XY plane
sketch26 = body5.newObject("Sketcher::SketchObject", "Sketch025")
sketch26.AttachmentSupport = (doc.getObject("XY_Plane004"), [""])
sketch26.MapMode = "FlatFace"
sketch26.AttachmentOffset = App.Placement(App.Vector(0, 0, 78.3), App.Rotation())
add_polygon(sketch26, [(-3.985195, 11.052963), (-2.77929, 11.552465), (-3.0089, 12.106793), (-4.214805, 11.607291)])  # lines 0-3
sketch26.addConstraint(Sketcher.Constraint("Perpendicular", 0, 1))
sketch26.addConstraint(Sketcher.Constraint("Perpendicular", 1, 2))
sketch26.addConstraint(Sketcher.Constraint("Perpendicular", 2, 3))
sketch26.addConstraint(Sketcher.Constraint("Angle", 0, Q("22.5 deg")))
sketch26.addConstraint(Sketcher.Constraint("Distance", 1, Q("0.6 mm")))
sketch26.addConstraint(Sketcher.Constraint("DistanceX", 1, 2, -1, 1, Q("3.0089 mm")))
sketch26.addConstraint(Sketcher.Constraint("Distance", 0, Q("1.305262 mm")))
sketch26.addConstraint(Sketcher.Constraint("DistanceY", -1, 1, 2, 2, Q("11.607291 mm")))
pad26 = body5.newObject("PartDesign::Pad", "Pad025")
pad26.Profile = sketch26
pad26.Length = 11.5

# Sketch on XY plane
sketch27 = body5.newObject("Sketcher::SketchObject", "Sketch026")
sketch27.AttachmentSupport = (doc.getObject("XY_Plane004"), [""])
sketch27.MapMode = "FlatFace"
sketch27.AttachmentOffset = App.Placement(App.Vector(0, 0, 78.3), App.Rotation())
add_polygon(sketch27, [(-4.952905, 10.297528), (-3.917372, 11.092121), (-4.282628, 11.568133), (-5.318162, 10.77354)])  # lines 0-3
sketch27.addConstraint(Sketcher.Constraint("Perpendicular", 0, 1))
sketch27.addConstraint(Sketcher.Constraint("Perpendicular", 1, 2))
sketch27.addConstraint(Sketcher.Constraint("Perpendicular", 2, 3))
sketch27.addConstraint(Sketcher.Constraint("Angle", 0, Q("37.5 deg")))
sketch27.addConstraint(Sketcher.Constraint("Distance", 1, Q("0.6 mm")))
sketch27.addConstraint(Sketcher.Constraint("Distance", 0, Q("1.305262 mm")))
sketch27.addConstraint(Sketcher.Constraint("DistanceX", 0, 2, -1, 1, Q("3.917372 mm")))
sketch27.addConstraint(Sketcher.Constraint("DistanceY", -1, 1, 0, 2, Q("11.092121 mm")))
pad27 = body5.newObject("PartDesign::Pad", "Pad026")
pad27.Profile = sketch27
pad27.Length = 11.5

# Sketch on XY plane
sketch28 = body5.newObject("Sketcher::SketchObject", "Sketch027")
sketch28.AttachmentSupport = (doc.getObject("XY_Plane004"), [""])
sketch28.MapMode = "FlatFace"
sketch28.AttachmentOffset = App.Placement(App.Vector(0, 0, 78.3), App.Rotation())
add_polygon(sketch28, [(-5.692121, 9.317372), (-4.897528, 10.352905), (-5.37354, 10.718162), (-6.168133, 9.682628)])  # lines 0-3
sketch28.addConstraint(Sketcher.Constraint("Perpendicular", 0, 1))
sketch28.addConstraint(Sketcher.Constraint("Perpendicular", 1, 2))
sketch28.addConstraint(Sketcher.Constraint("Perpendicular", 2, 3))
sketch28.addConstraint(Sketcher.Constraint("Angle", 0, Q("52.5 deg")))
sketch28.addConstraint(Sketcher.Constraint("Distance", 1, Q("0.6 mm")))
sketch28.addConstraint(Sketcher.Constraint("Distance", 0, Q("1.305262 mm")))
sketch28.addConstraint(Sketcher.Constraint("DistanceX", 1, 2, -1, 1, Q("5.37354 mm")))
sketch28.addConstraint(Sketcher.Constraint("DistanceY", -1, 1, 2, 2, Q("9.682628 mm")))
pad28 = body5.newObject("PartDesign::Pad", "Pad027")
pad28.Profile = sketch28
pad28.Length = 11.5

# Sketch on XY plane
sketch29 = body5.newObject("Sketcher::SketchObject", "Sketch028")
sketch29.AttachmentSupport = (doc.getObject("XY_Plane004"), [""])
sketch29.MapMode = "FlatFace"
sketch29.AttachmentOffset = App.Placement(App.Vector(0, 0, 78.3), App.Rotation())
add_polygon(sketch29, [(-6.152465, 8.17929), (-5.652963, 9.385195), (-6.207291, 9.614805), (-6.706793, 8.4089)])  # lines 0-3
sketch29.addConstraint(Sketcher.Constraint("Perpendicular", 0, 1))
sketch29.addConstraint(Sketcher.Constraint("Perpendicular", 1, 2))
sketch29.addConstraint(Sketcher.Constraint("Perpendicular", 2, 3))
sketch29.addConstraint(Sketcher.Constraint("Angle", 0, Q("67.5 deg")))
sketch29.addConstraint(Sketcher.Constraint("Distance", 1, Q("0.6 mm")))
sketch29.addConstraint(Sketcher.Constraint("DistanceY", -1, 1, 2, 2, Q("8.4089 mm")))
sketch29.addConstraint(Sketcher.Constraint("Distance", 0, Q("1.305262 mm")))
sketch29.addConstraint(Sketcher.Constraint("DistanceX", 1, 2, -1, 1, Q("6.207291 mm")))
pad29 = body5.newObject("PartDesign::Pad", "Pad028")
pad29.Profile = sketch29
pad29.Length = 11.5

# Sketch on XY plane
sketch30 = body5.newObject("Sketcher::SketchObject", "Sketch029")
sketch30.AttachmentSupport = (doc.getObject("XY_Plane004"), [""])
sketch30.MapMode = "FlatFace"
sketch30.AttachmentOffset = App.Placement(App.Vector(0, 0, 78.3), App.Rotation())
add_polygon(sketch30, [(-6.302567, 6.960842), (-6.132196, 8.254937), (-6.727063, 8.333253), (-6.897433, 7.039158)])  # lines 0-3
sketch30.addConstraint(Sketcher.Constraint("Perpendicular", 0, 1))
sketch30.addConstraint(Sketcher.Constraint("Perpendicular", 1, 2))
sketch30.addConstraint(Sketcher.Constraint("Perpendicular", 2, 3))
sketch30.addConstraint(Sketcher.Constraint("Angle", 0, Q("82.5 deg")))
sketch30.addConstraint(Sketcher.Constraint("Distance", 1, Q("0.6 mm")))
sketch30.addConstraint(Sketcher.Constraint("Distance", 0, Q("1.305262 mm")))
sketch30.addConstraint(Sketcher.Constraint("DistanceX", 0, 2, -1, 1, Q("6.132196 mm")))
sketch30.addConstraint(Sketcher.Constraint("DistanceY", -1, 1, 0, 2, Q("8.254937 mm")))
pad30 = body5.newObject("PartDesign::Pad", "Pad029")
pad30.Profile = sketch30
pad30.Length = 11.5

# Sketch on XY plane
sketch31 = body5.newObject("Sketcher::SketchObject", "Sketch030")
sketch31.AttachmentSupport = (doc.getObject("XY_Plane004"), [""])
sketch31.MapMode = "FlatFace"
sketch31.AttachmentOffset = App.Placement(App.Vector(0, 0, 78.3), App.Rotation())
add_polygon(sketch31, [(-6.9, 7), (-6.9, -9.39), (-6.3, -9.39), (-6.3, 7)])  # lines 0-3
sketch31.addConstraint(Sketcher.Constraint("Vertical", 0))
sketch31.addConstraint(Sketcher.Constraint("Horizontal", 1))
sketch31.addConstraint(Sketcher.Constraint("Vertical", 2))
sketch31.addConstraint(Sketcher.Constraint("Horizontal", 3))
sketch31.addConstraint(Sketcher.Constraint("DistanceX", 1, 1, 1, 2, Q("0.6 mm")))
sketch31.addConstraint(Sketcher.Constraint("DistanceY", -1, 1, 2, 2, Q("7 mm")))
sketch31.addConstraint(Sketcher.Constraint("DistanceY", 0, 2, 0, 1, Q("16.39 mm")))
sketch31.addConstraint(Sketcher.Constraint("DistanceX", 0, 2, -1, 1, Q("6.9 mm")))
pad31 = body5.newObject("PartDesign::Pad", "Pad030")
pad31.Profile = sketch31
pad31.Length = 11.5
body6 = doc.addObject("PartDesign::Body", "Body005")

# Sketch on XZ plane
sketch32 = body6.newObject("Sketcher::SketchObject", "Sketch031")
sketch32.AttachmentSupport = (doc.getObject("XZ_Plane005"), [""])
sketch32.MapMode = "FlatFace"
sketch32.AttachmentOffset = App.Placement(App.Vector(0, 0, 13), App.Rotation())
add_polygon(sketch32, [(-18, 11.9), (-18, 17.9), (-8, 17.9), (-8, 11.9)])  # lines 0-3
sketch32.addConstraint(Sketcher.Constraint("Vertical", 0))
sketch32.addConstraint(Sketcher.Constraint("Horizontal", 1))
sketch32.addConstraint(Sketcher.Constraint("Vertical", 2))
sketch32.addConstraint(Sketcher.Constraint("Horizontal", 3))
sketch32.addConstraint(Sketcher.Constraint("DistanceX", 1, 1, 1, 2, Q("10 mm")))
sketch32.addConstraint(Sketcher.Constraint("DistanceY", 0, 1, 0, 2, Q("6 mm")))
sketch32.addConstraint(Sketcher.Constraint("DistanceX", 0, 2, -1, 1, Q("18 mm")))
sketch32.addConstraint(Sketcher.Constraint("DistanceY", -1, 1, 0, 2, Q("17.9 mm")))
pad32 = body6.newObject("PartDesign::Pad", "Pad031")
pad32.Profile = sketch32
pad32.Length = 2
pad32.Reversed = True

# Sketch on XZ plane
sketch33 = body6.newObject("Sketcher::SketchObject", "Sketch032")
sketch33.AttachmentSupport = (doc.getObject("XZ_Plane005"), [""])
sketch33.MapMode = "FlatFace"
sketch33.AttachmentOffset = App.Placement(App.Vector(0, 0, 13), App.Rotation())
add_polygon(sketch33, [(-47.5, 17.9), (-47.5, 31), (-8, 31), (-8, 17.9)])  # lines 0-3
sketch33.addConstraint(Sketcher.Constraint("Vertical", 0))
sketch33.addConstraint(Sketcher.Constraint("Horizontal", 1))
sketch33.addConstraint(Sketcher.Constraint("Vertical", 2))
sketch33.addConstraint(Sketcher.Constraint("Horizontal", 3))
sketch33.addConstraint(Sketcher.Constraint("DistanceX", 1, 1, 1, 2, Q("39.5 mm")))
sketch33.addConstraint(Sketcher.Constraint("DistanceY", 0, 1, 0, 2, Q("13.1 mm")))
sketch33.addConstraint(Sketcher.Constraint("DistanceY", -1, 1, 0, 2, Q("31 mm")))
sketch33.addConstraint(Sketcher.Constraint("DistanceX", 1, 2, -1, 1, Q("8 mm")))
pad33 = body6.newObject("PartDesign::Pad", "Pad032")
pad33.Profile = sketch33
pad33.Length = 2
pad33.Reversed = True

# Sketch on YZ plane
sketch34 = body6.newObject("Sketcher::SketchObject", "Sketch033")
sketch34.AttachmentSupport = (doc.getObject("YZ_Plane005"), [""])
sketch34.MapMode = "FlatFace"
sketch34.AttachmentOffset = App.Placement(App.Vector(0, 0, -47.5), App.Rotation())
add_polygon(sketch34, [(18.7, 31), (-13, 31), (-13, 29), (18.7, 29)])  # lines 0-3
sketch34.addConstraint(Sketcher.Constraint("Horizontal", 0))
sketch34.addConstraint(Sketcher.Constraint("Vertical", 1))
sketch34.addConstraint(Sketcher.Constraint("Horizontal", 2))
sketch34.addConstraint(Sketcher.Constraint("Vertical", 3))
sketch34.addConstraint(Sketcher.Constraint("DistanceY", 1, 2, 1, 1, Q("2 mm")))
sketch34.addConstraint(Sketcher.Constraint("DistanceX", 0, 2, 0, 1, Q("31.7 mm")))
sketch34.addConstraint(Sketcher.Constraint("DistanceX", 0, 2, -1, 1, Q("13 mm")))
sketch34.addConstraint(Sketcher.Constraint("DistanceY", -1, 1, 0, 2, Q("31 mm")))
pad34 = body6.newObject("PartDesign::Pad", "Pad033")
pad34.Profile = sketch34
pad34.Length = 22

# Sketch on YZ plane
sketch35 = body6.newObject("Sketcher::SketchObject", "Sketch034")
sketch35.AttachmentSupport = (doc.getObject("YZ_Plane005"), [""])
sketch35.MapMode = "FlatFace"
sketch35.AttachmentOffset = App.Placement(App.Vector(0, 0, -47.5), App.Rotation())
add_polygon(sketch35, [(18.7, 29), (20.996101, 29.456723), (22.942641, 30.757359), (24.243277, 32.703899), (24.7, 35), (24.243277, 37.296101), (22.942641, 39.242641), (20.996101, 40.543277), (18.7, 41), (18.7, 39), (20.230734, 38.695518), (21.528427, 37.828427), (22.395518, 36.530734), (22.7, 35), (22.395518, 33.469266), (21.528427, 32.171573), (20.230734, 31.304482), (18.7, 31)])  # lines 0-17
sketch35.addConstraint(Sketcher.Constraint("Vertical", 8))
sketch35.addConstraint(Sketcher.Constraint("Vertical", 17))
sketch35.addConstraint(Sketcher.Constraint("Perpendicular", 0, 4))
sketch35.addConstraint(Sketcher.Constraint("Perpendicular", 1, 5))
sketch35.addConstraint(Sketcher.Constraint("Perpendicular", 2, 6))
sketch35.addConstraint(Sketcher.Constraint("Perpendicular", 3, 7))
sketch35.addConstraint(Sketcher.Constraint("Parallel", 7, 9))
sketch35.addConstraint(Sketcher.Constraint("Parallel", 6, 10))
sketch35.addConstraint(Sketcher.Constraint("Parallel", 5, 11))
sketch35.addConstraint(Sketcher.Constraint("Parallel", 4, 12))
sketch35.addConstraint(Sketcher.Constraint("Perpendicular", 9, 13))
sketch35.addConstraint(Sketcher.Constraint("Perpendicular", 10, 14))
sketch35.addConstraint(Sketcher.Constraint("Perpendicular", 11, 15))
sketch35.addConstraint(Sketcher.Constraint("Perpendicular", 12, 16))
sketch35.addConstraint(Sketcher.Constraint("Horizontal", 3, 2, 12, 2))
sketch35.addConstraint(Sketcher.Constraint("Vertical", 2, 2, 4, 2))
sketch35.addConstraint(Sketcher.Constraint("Vertical", 1, 2, 5, 2))
sketch35.addConstraint(Sketcher.Constraint("Vertical", 0, 2, 6, 2))
sketch35.addConstraint(Sketcher.Constraint("Vertical", 11, 2, 13, 2))
sketch35.addConstraint(Sketcher.Constraint("Vertical", 10, 2, 14, 2))
sketch35.addConstraint(Sketcher.Constraint("Vertical", 9, 2, 15, 2))
sketch35.addConstraint(Sketcher.Constraint("Vertical", 8, 2, 16, 2))
sketch35.addConstraint(Sketcher.Constraint("Equal", 8, 17))
sketch35.addConstraint(Sketcher.Constraint("Equal", 0, 1))
sketch35.addConstraint(Sketcher.Constraint("Equal", 1, 2))
sketch35.addConstraint(Sketcher.Constraint("Equal", 2, 3))
sketch35.addConstraint(Sketcher.Constraint("Equal", 3, 4))
sketch35.addConstraint(Sketcher.Constraint("Equal", 9, 10))
sketch35.addConstraint(Sketcher.Constraint("Equal", 10, 11))
sketch35.addConstraint(Sketcher.Constraint("Equal", 11, 12))
sketch35.addConstraint(Sketcher.Constraint("DistanceY", 8, 2, 8, 1, Q("2 mm")))
sketch35.addConstraint(Sketcher.Constraint("DistanceY", -1, 1, 3, 2, Q("35 mm")))
sketch35.addConstraint(Sketcher.Constraint("DistanceY", -1, 1, 7, 2, Q("41 mm")))
sketch35.addConstraint(Sketcher.Constraint("DistanceX", -1, 1, 3, 2, Q("24.7 mm")))
sketch35.addConstraint(Sketcher.Constraint("Angle", 0, Q("11.25 deg")))
sketch35.addConstraint(Sketcher.Constraint("Angle", 1, Q("33.75 deg")))
pad35 = body6.newObject("PartDesign::Pad", "Pad034")
pad35.Profile = sketch35
pad35.Length = 22

# Sketch on YZ plane
sketch36 = body6.newObject("Sketcher::SketchObject", "Sketch035")
sketch36.AttachmentSupport = (doc.getObject("YZ_Plane005"), [""])
sketch36.MapMode = "FlatFace"
sketch36.AttachmentOffset = App.Placement(App.Vector(0, 0, -47.5), App.Rotation())
add_polygon(sketch36, [(18.7, 41), (17.71, 41), (17.71, 39), (18.7, 39)])  # lines 0-3
sketch36.addConstraint(Sketcher.Constraint("Horizontal", 0))
sketch36.addConstraint(Sketcher.Constraint("Vertical", 1))
sketch36.addConstraint(Sketcher.Constraint("Horizontal", 2))
sketch36.addConstraint(Sketcher.Constraint("Vertical", 3))
sketch36.addConstraint(Sketcher.Constraint("DistanceY", 1, 2, 1, 1, Q("2 mm")))
sketch36.addConstraint(Sketcher.Constraint("DistanceY", -1, 1, 0, 2, Q("41 mm")))
sketch36.addConstraint(Sketcher.Constraint("DistanceX", 0, 2, 0, 1, Q("0.99 mm")))
sketch36.addConstraint(Sketcher.Constraint("DistanceX", -1, 1, 2, 2, Q("18.7 mm")))
pad36 = body6.newObject("PartDesign::Pad", "Pad035")
pad36.Profile = sketch36
pad36.Length = 22

doc.recompute()
